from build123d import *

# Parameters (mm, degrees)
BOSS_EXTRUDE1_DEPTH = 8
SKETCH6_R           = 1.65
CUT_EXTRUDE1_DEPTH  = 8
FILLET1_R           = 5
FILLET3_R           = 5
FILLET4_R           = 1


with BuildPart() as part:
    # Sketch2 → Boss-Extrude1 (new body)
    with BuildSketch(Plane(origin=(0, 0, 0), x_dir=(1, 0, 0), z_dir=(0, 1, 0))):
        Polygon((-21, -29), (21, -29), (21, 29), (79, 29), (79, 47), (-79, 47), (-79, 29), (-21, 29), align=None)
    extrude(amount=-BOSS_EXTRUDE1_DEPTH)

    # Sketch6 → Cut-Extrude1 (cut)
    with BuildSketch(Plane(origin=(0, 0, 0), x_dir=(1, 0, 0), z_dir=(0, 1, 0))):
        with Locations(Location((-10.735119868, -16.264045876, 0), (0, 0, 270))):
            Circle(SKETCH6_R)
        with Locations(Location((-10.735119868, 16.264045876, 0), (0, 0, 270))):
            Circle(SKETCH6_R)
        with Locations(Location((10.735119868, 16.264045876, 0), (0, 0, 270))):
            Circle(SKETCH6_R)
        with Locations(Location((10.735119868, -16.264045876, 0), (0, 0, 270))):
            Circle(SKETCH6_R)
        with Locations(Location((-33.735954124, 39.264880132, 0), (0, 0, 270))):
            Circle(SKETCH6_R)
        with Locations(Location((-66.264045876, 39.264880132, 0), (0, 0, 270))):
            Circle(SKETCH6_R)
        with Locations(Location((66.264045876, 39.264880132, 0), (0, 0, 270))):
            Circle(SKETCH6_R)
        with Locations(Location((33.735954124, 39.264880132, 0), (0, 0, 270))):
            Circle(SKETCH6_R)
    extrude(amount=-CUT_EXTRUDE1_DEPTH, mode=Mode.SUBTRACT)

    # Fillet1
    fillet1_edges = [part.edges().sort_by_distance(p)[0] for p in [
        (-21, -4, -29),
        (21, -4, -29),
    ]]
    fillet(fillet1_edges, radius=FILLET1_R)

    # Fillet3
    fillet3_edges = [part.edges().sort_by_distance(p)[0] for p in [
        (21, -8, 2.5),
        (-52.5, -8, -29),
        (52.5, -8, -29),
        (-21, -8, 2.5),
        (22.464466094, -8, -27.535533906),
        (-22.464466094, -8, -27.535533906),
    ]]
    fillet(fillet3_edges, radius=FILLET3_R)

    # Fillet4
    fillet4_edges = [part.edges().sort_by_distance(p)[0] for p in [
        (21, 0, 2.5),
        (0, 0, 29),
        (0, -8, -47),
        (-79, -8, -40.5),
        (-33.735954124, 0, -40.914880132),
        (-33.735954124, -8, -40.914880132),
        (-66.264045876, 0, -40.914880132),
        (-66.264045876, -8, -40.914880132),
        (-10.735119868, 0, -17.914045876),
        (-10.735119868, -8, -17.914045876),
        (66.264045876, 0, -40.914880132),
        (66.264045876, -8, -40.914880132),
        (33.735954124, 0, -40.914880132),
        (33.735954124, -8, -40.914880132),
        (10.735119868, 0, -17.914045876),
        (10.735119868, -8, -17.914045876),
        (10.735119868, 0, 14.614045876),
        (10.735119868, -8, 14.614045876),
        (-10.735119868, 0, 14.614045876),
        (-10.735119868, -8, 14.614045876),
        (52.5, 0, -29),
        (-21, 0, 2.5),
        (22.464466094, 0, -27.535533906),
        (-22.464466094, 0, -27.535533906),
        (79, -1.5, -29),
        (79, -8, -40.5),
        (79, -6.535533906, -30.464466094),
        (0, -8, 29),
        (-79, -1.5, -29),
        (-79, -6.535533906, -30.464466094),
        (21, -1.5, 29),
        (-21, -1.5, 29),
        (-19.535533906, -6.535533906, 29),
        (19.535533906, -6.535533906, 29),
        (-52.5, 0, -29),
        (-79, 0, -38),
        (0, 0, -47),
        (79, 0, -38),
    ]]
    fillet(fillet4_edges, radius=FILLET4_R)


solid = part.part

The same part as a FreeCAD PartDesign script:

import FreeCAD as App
import Part
import Sketcher
Q = App.Units.Quantity


def edges_at(feature, points):
    """Names of the edges that pass closest to the given points."""
    edges = feature.Shape.Edges
    near = lambda p: min(range(len(edges)), key=lambda i: edges[i].distToShape(Part.Vertex(*p))[0])
    return sorted({f"Edge{near(p) + 1}" for p in points})

doc = App.newDocument("Part")
body = doc.addObject("PartDesign::Body", "Body")

# Sketch on XZ plane
sketch1 = doc.addObject("Sketcher::SketchObject", "Sketch")
body.addObject(sketch1)
sketch1.AttachmentSupport = (doc.XZ_Plane, [""])
sketch1.MapMode = "FlatFace"
sketch1.addGeometry(Part.LineSegment(App.Vector(-21, 29, 0), App.Vector(21, 29, 0)), False)
sketch1.addGeometry(Part.LineSegment(App.Vector(21, 29, 0), App.Vector(21, -29, 0)), False)
sketch1.addGeometry(Part.LineSegment(App.Vector(21, -29, 0), App.Vector(79, -29, 0)), False)
sketch1.addGeometry(Part.LineSegment(App.Vector(79, -29, 0), App.Vector(79, -47, 0)), False)
sketch1.addGeometry(Part.LineSegment(App.Vector(79, -47, 0), App.Vector(-79, -47, 0)), False)
sketch1.addGeometry(Part.LineSegment(App.Vector(-79, -47, 0), App.Vector(-79, -29, 0)), False)
sketch1.addGeometry(Part.LineSegment(App.Vector(-79, -29, 0), App.Vector(-21, -29, 0)), False)
sketch1.addGeometry(Part.LineSegment(App.Vector(-21, -29, 0), App.Vector(-21, 29, 0)), False)
sketch1.addConstraint(Sketcher.Constraint("Coincident", 0, 2, 1, 1))
sketch1.addConstraint(Sketcher.Constraint("Coincident", 1, 2, 2, 1))
sketch1.addConstraint(Sketcher.Constraint("Coincident", 2, 2, 3, 1))
sketch1.addConstraint(Sketcher.Constraint("Coincident", 3, 2, 4, 1))
sketch1.addConstraint(Sketcher.Constraint("Coincident", 4, 2, 5, 1))
sketch1.addConstraint(Sketcher.Constraint("Coincident", 5, 2, 6, 1))
sketch1.addConstraint(Sketcher.Constraint("Coincident", 6, 2, 7, 1))
sketch1.addConstraint(Sketcher.Constraint("Coincident", 7, 2, 0, 1))
sketch1.addConstraint(Sketcher.Constraint("Horizontal", 0))
sketch1.addConstraint(Sketcher.Constraint("Vertical", 1))
sketch1.addConstraint(Sketcher.Constraint("Horizontal", 2))
sketch1.addConstraint(Sketcher.Constraint("Vertical", 3))
sketch1.addConstraint(Sketcher.Constraint("Horizontal", 4))
sketch1.addConstraint(Sketcher.Constraint("Vertical", 5))
sketch1.addConstraint(Sketcher.Constraint("Horizontal", 6))
sketch1.addConstraint(Sketcher.Constraint("Vertical", 7))
sketch1.addConstraint(Sketcher.Constraint("Symmetric", 0, 2, 6, 2, -1, 1))
sketch1.addConstraint(Sketcher.Constraint("Symmetric", 2, 2, 5, 2, -2))
sketch1.addConstraint(Sketcher.Constraint("Equal", 6, 1))
sketch1.addConstraint(Sketcher.Constraint("DistanceX", 0, 1, 0, 2, Q("42 mm")))
sketch1.addConstraint(Sketcher.Constraint("DistanceX", 2, 1, 2, 2, Q("58 mm")))
sketch1.addConstraint(Sketcher.Constraint("DistanceY", 3, 2, 3, 1, Q("18 mm")))
pad1 = doc.addObject("PartDesign::Pad", "Pad")
body.addObject(pad1)
pad1.Profile = sketch1
pad1.Length = 8

# Sketch on XZ plane
sketch2 = doc.addObject("Sketcher::SketchObject", "Sketch001")
body.addObject(sketch2)
sketch2.AttachmentSupport = (doc.XZ_Plane, [""])
sketch2.MapMode = "FlatFace"
sketch2.addGeometry(Part.Circle(App.Vector(-10.7, 16.3, 0), App.Vector(0, 0, 1), 1.6), False)
sketch2.addGeometry(Part.Circle(App.Vector(-10.7, -16.3, 0), App.Vector(0, 0, 1), 1.6), False)
sketch2.addGeometry(Part.Circle(App.Vector(10.7, -16.3, 0), App.Vector(0, 0, 1), 1.6), False)
sketch2.addGeometry(Part.Circle(App.Vector(10.7, 16.3, 0), App.Vector(0, 0, 1), 1.6), False)
sketch2.addGeometry(Part.Circle(App.Vector(-33.7, -39.3, 0), App.Vector(0, 0, 1), 1.6), False)
sketch2.addGeometry(Part.Circle(App.Vector(-66.3, -39.3, 0), App.Vector(0, 0, 1), 1.6), False)
sketch2.addGeometry(Part.Circle(App.Vector(66.3, -39.3, 0), App.Vector(0, 0, 1), 1.6), False)
sketch2.addGeometry(Part.Circle(App.Vector(33.7, -39.3, 0), App.Vector(0, 0, 1), 1.6), False)
sketch2.addConstraint(Sketcher.Constraint("Equal", 0, 1))
sketch2.addConstraint(Sketcher.Constraint("Equal", 1, 2))
sketch2.addConstraint(Sketcher.Constraint("Equal", 2, 3))
sketch2.addConstraint(Sketcher.Constraint("Equal", 3, 4))
sketch2.addConstraint(Sketcher.Constraint("Equal", 4, 5))
sketch2.addConstraint(Sketcher.Constraint("Equal", 5, 6))
sketch2.addConstraint(Sketcher.Constraint("Equal", 6, 7))
sketch2.addConstraint(Sketcher.Constraint("Symmetric", 0, 3, 2, 3, -1, 1))
sketch2.addConstraint(Sketcher.Constraint("Symmetric", 1, 3, 3, 3, -1, 1))
sketch2.addConstraint(Sketcher.Constraint("Symmetric", 1, 3, 2, 3, -2))
sketch2.addConstraint(Sketcher.Constraint("Symmetric", 5, 3, 6, 3, -2))
sketch2.addConstraint(Sketcher.Constraint("Symmetric", 4, 3, 7, 3, -2))
sketch2.addConstraint(Sketcher.Constraint("Horizontal", 4, 3, 5, 3))
sketch2.addConstraint(Sketcher.Constraint("Diameter", 0, Q("3.3 mm")))
sketch2.addConstraint(Sketcher.Constraint("DistanceX", 4, 3, 6, 3, Q("100 mm")))
sketch2.addConstraint(Sketcher.Constraint("DistanceX", 0, 3, -1, 1, Q("10.73512 mm")))
sketch2.addConstraint(Sketcher.Constraint("DistanceY", 4, 3, -1, 1, Q("39.26488 mm")))
sketch2.addConstraint(Sketcher.Constraint("DistanceY", 1, 3, 0, 3, Q("32.528092 mm")))
sketch2.addConstraint(Sketcher.Constraint("DistanceX", 5, 3, 4, 3, Q("32.528092 mm")))
pocket1 = doc.addObject("PartDesign::Pocket", "Pocket")
body.addObject(pocket1)
pocket1.Profile = sketch2
pocket1.Length = 8
pocket1.Reversed = True
doc.recompute()

fillet = doc.addObject("PartDesign::Fillet", "Fillet")
body.addObject(fillet)
fillet.Base = (pocket1, edges_at(pocket1, [(-21, -4, -29), (21, -4, -29)]))
fillet.Radius = 5
doc.recompute()

fillet2 = doc.addObject("PartDesign::Fillet", "Fillet001")
body.addObject(fillet2)
fillet2.Base = (fillet, edges_at(fillet, [
    (21, -8, 2.5),
    (-52.5, -8, -29),
    (52.5, -8, -29),
    (-21, -8, 2.5),
    (22.464, -8, -27.536),
    (-22.464, -8, -27.536),
]))
fillet2.Radius = 5
doc.recompute()

fillet3 = doc.addObject("PartDesign::Fillet", "Fillet002")
body.addObject(fillet3)
fillet3.Base = (fillet2, edges_at(fillet2, [
    (21, 0, 2.5),
    (0, 0, 29),
    (0, -8, -47),
    (-79, -8, -40.5),
    (-33.736, 0, -40.915),
    (-33.736, -8, -40.915),
    (-66.264, 0, -40.915),
    (-66.264, -8, -40.915),
    (-10.735, 0, -17.914),
    (-10.735, -8, -17.914),
    (66.264, 0, -40.915),
    (66.264, -8, -40.915),
    (33.736, 0, -40.915),
    (33.736, -8, -40.915),
    (10.735, 0, -17.914),
    (10.735, -8, -17.914),
    (10.735, 0, 14.614),
    (10.735, -8, 14.614),
    (-10.735, 0, 14.614),
    (-10.735, -8, 14.614),
    (52.5, 0, -29),
    (-21, 0, 2.5),
    (22.464, 0, -27.536),
    (-22.464, 0, -27.536),
    (79, -1.5, -29),
    (79, -8, -40.5),
    (79, -6.536, -30.464),
    (0, -8, 29),
    (-79, -1.5, -29),
    (-79, -6.536, -30.464),
    (21, -1.5, 29),
    (-21, -1.5, 29),
    (-19.536, -6.536, 29),
    (19.536, -6.536, 29),
    (-52.5, 0, -29),
    (-79, 0, -38),
    (0, 0, -47),
    (79, 0, -38),
]))
fillet3.Radius = 1

doc.recompute()
